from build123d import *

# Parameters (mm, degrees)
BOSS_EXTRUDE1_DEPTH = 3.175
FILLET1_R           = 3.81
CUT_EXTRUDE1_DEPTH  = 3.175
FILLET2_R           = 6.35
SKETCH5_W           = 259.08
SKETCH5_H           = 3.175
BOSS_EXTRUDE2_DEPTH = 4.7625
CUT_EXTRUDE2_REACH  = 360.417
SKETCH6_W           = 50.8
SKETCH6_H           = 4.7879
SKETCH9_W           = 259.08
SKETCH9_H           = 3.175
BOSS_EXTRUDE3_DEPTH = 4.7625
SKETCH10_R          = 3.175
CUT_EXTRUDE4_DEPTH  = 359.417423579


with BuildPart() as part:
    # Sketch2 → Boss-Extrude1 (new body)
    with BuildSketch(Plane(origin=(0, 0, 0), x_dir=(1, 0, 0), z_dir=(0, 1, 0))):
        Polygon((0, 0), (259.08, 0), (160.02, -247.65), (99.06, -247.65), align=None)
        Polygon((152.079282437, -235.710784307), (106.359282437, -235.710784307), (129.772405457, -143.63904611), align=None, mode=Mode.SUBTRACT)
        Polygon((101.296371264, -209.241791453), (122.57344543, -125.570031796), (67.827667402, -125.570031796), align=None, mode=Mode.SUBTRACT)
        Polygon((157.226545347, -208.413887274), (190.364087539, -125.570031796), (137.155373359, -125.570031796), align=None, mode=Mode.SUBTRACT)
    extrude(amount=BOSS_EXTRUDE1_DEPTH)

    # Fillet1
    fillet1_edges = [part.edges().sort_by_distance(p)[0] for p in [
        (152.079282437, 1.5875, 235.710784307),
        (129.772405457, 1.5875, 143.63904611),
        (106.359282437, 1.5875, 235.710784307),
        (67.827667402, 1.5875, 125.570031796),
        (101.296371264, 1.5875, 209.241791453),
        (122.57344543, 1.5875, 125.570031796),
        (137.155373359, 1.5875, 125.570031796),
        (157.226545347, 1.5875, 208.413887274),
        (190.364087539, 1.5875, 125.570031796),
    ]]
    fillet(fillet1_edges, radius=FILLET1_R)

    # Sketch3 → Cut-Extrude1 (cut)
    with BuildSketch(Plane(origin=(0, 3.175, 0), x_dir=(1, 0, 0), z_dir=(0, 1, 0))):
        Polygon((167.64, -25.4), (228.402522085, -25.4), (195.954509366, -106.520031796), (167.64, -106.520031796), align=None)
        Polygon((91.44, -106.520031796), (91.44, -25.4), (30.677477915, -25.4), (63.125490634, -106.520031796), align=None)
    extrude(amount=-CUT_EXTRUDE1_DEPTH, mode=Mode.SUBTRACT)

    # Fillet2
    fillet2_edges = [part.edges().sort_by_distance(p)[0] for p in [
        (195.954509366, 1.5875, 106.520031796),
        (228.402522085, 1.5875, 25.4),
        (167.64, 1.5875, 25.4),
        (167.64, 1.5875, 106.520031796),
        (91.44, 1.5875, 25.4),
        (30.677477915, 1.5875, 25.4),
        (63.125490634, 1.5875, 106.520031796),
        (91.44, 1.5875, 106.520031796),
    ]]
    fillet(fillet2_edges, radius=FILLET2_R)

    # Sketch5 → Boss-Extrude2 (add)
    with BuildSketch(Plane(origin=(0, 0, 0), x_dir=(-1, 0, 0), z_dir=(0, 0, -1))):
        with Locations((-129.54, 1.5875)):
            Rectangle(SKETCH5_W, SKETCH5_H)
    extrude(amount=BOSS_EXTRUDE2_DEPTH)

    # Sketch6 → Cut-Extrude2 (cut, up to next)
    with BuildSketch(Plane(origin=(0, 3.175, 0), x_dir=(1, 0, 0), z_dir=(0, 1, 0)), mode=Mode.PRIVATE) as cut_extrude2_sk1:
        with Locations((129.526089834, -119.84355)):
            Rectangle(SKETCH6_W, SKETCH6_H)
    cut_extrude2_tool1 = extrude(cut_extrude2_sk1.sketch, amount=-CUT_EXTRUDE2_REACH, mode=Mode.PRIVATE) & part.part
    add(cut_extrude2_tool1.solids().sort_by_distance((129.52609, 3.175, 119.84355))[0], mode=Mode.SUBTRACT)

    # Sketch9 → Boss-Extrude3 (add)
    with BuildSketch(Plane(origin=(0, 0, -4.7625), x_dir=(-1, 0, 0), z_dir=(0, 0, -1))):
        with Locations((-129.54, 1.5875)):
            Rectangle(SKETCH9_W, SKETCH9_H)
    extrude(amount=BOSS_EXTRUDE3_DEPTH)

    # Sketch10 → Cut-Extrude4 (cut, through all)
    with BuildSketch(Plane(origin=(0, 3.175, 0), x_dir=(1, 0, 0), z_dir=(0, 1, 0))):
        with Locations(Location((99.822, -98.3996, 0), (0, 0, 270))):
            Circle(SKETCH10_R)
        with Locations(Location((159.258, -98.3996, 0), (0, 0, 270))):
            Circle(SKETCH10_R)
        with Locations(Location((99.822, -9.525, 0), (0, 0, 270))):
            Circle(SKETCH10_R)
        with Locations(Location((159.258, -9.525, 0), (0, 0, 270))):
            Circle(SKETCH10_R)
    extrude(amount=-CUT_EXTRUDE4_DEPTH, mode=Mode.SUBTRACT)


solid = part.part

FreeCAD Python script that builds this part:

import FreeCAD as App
import Part
import Sketcher
from FreeCAD import Vector
Q = App.Units.Quantity


def edges_at(feature, points):
    """Names of the edges that pass closest to the given points."""
    edges = feature.Shape.Edges
    near = lambda p: min(range(len(edges)), key=lambda i: edges[i].distToShape(Part.Vertex(*p))[0])
    return sorted({f"Edge{near(p) + 1}" for p in points})


def add_polygon(sketch, points):
    """Adds a closed chain of lines whose ends are joined by coincident constraints."""
    first, n = sketch.GeometryCount, len(points)
    for a, b in zip(points, points[1:] + points[:1]):
        sketch.addGeometry(Part.LineSegment(App.Vector(*a, 0), App.Vector(*b, 0)), False)
    for i in range(n):
        sketch.addConstraint(Sketcher.Constraint("Coincident", first + i, 2, first + (i + 1) % n, 1))

doc = App.newDocument("Part")
body = doc.addObject("PartDesign::Body", "Body")

sketch1 = body.newObject("Sketcher::SketchObject", "Sketch")
sketch1.AttachmentSupport = (doc.getObject("XZ_Plane"), [""])
sketch1.MapMode = "FlatFace"
add_polygon(sketch1, [(259.08, 0), (0, 0), (99.06, 247.65), (160.02, 247.65)])
add_polygon(sketch1, [(152.079282, 235.710784), (106.359282, 235.710784), (129.772405, 143.639046)])
add_polygon(sketch1, [(157.226545, 208.413887), (137.155373, 125.570032), (190.364088, 125.570032)])
add_polygon(sketch1, [(101.296371, 209.241791), (67.827667, 125.570032), (122.573445, 125.570032)])
sketch1.addConstraint(Sketcher.Constraint("Horizontal", 0))
sketch1.addConstraint(Sketcher.Constraint("Horizontal", 2))
sketch1.addConstraint(Sketcher.Constraint("Horizontal", 4))
sketch1.addConstraint(Sketcher.Constraint("Horizontal", 8))
sketch1.addConstraint(Sketcher.Constraint("Horizontal", 11))
sketch1.addConstraint(Sketcher.Constraint("Coincident", 0, 2, -1, 1))
sketch1.addConstraint(Sketcher.Constraint("Parallel", 6, 7))
sketch1.addConstraint(Sketcher.Constraint("Parallel", 3, 9))
sketch1.addConstraint(Sketcher.Constraint("Parallel", 1, 10))
sketch1.addConstraint(Sketcher.Constraint("Parallel", 5, 12))
sketch1.addConstraint(Sketcher.Constraint("Horizontal", 8, 2, 10, 2))
sketch1.addConstraint(Sketcher.Constraint("Equal", 1, 3))
sketch1.addConstraint(Sketcher.Constraint("DistanceX", 0, 2, 0, 1, Q("10.2 in")))
sketch1.addConstraint(Sketcher.Constraint("DistanceX", 2, 1, 2, 2, Q("2.4 in")))
sketch1.addConstraint(Sketcher.Constraint("DistanceX", 4, 2, 4, 1, Q("1.8 in")))
sketch1.addConstraint(Sketcher.Constraint("DistanceY", -1, 1, 1, 2, Q("9.75 in")))
sketch1.addConstraint(Sketcher.Constraint("DistanceX", 11, 1, 11, 2, 54.745778))
sketch1.addConstraint(Sketcher.Constraint("DistanceX", 11, 2, 9, 2, 34.6531))
sketch1.addConstraint(Sketcher.Constraint("Distance", 6, 94.73543))
sketch1.addConstraint(Sketcher.Constraint("Distance", 7, 85.240579))
sketch1.addConstraint(Sketcher.Constraint("Distance", 12, 86.334682))
sketch1.addConstraint(Sketcher.Constraint("DistanceY", -1, 1, 7, 2, 125.570032))
sketch1.addConstraint(Sketcher.Constraint("DistanceX", -1, 1, 12, 2, 101.296371))
sketch1.addConstraint(Sketcher.Constraint("DistanceX", 7, 2, 6, 2, 14.923909))
sketch1.addConstraint(Sketcher.Constraint("DistanceY", 5, 2, 9, 2, 64.774841))
pad1 = body.newObject("PartDesign::Pad", "Pad")
pad1.Profile = sketch1
pad1.Length = Q("0.125 in")
pad1.Reversed = True
doc.recompute()

fillet = body.newObject("PartDesign::Fillet", "Fillet")
fillet.Base = (pad1, edges_at(pad1, [
    (152.079, 1.587, 235.711),
    (129.772, 1.587, 143.639),
    (106.359, 1.587, 235.711),
    (67.828, 1.587, 125.57),
    (101.296, 1.587, 209.242),
    (122.573, 1.587, 125.57),
    (137.155, 1.587, 125.57),
    (157.227, 1.587, 208.414),
    (190.364, 1.587, 125.57),
]))
fillet.Radius = Q("0.15 in")

sketch2 = body.newObject("Sketcher::SketchObject", "Sketch001")
sketch2.AttachmentSupport = (doc.getObject("XZ_Plane"), [""])
sketch2.MapMode = "FlatFace"
sketch2.AttachmentOffset = App.Placement(Vector(0, 0, -0.125 * 25.4), App.Rotation())
add_polygon(sketch2, [(228.402522, 25.4), (167.64, 25.4), (167.64, 106.520032), (195.954509, 106.520032)])
add_polygon(sketch2, [(91.44, 106.520032), (91.44, 25.4), (30.677478, 25.4), (63.125491, 106.520032)])
sketch2.addConstraint(Sketcher.Constraint("Horizontal", 0))
sketch2.addConstraint(Sketcher.Constraint("Vertical", 1))
sketch2.addConstraint(Sketcher.Constraint("Horizontal", 2))
sketch2.addConstraint(Sketcher.Constraint("Vertical", 4))
sketch2.addConstraint(Sketcher.Constraint("Horizontal", 5))
sketch2.addConstraint(Sketcher.Constraint("Horizontal", 7))
sketch2.addConstraint(Sketcher.Constraint("Horizontal", 3, 2, 4, 2))
sketch2.addConstraint(Sketcher.Constraint("Horizontal", 2, 2, 6, 2))
sketch2.addConstraint(Sketcher.Constraint("Equal", 0, 5))
sketch2.addConstraint(Sketcher.Constraint("Equal", 2, 7))
sketch2.addConstraint(Sketcher.Constraint("DistanceY", -1, 1, 0, 2, Q("1 in")))
sketch2.addConstraint(Sketcher.Constraint("DistanceX", 4, 2, 0, 2, Q("3 in")))
sketch2.addConstraint(Sketcher.Constraint("DistanceX", -1, 1, 0, 2, Q("6.6 in")))
sketch2.addConstraint(Sketcher.Constraint("DistanceX", 2, 1, 2, 2, 28.314509))
sketch2.addConstraint(Sketcher.Constraint("DistanceY", 1, 1, 1, 2, 81.120032))
sketch2.addConstraint(Sketcher.Constraint("Distance", 3, 87.368948))
pocket1 = body.newObject("PartDesign::Pocket", "Pocket")
pocket1.Profile = sketch2
pocket1.Length = Q("0.125 in")
pocket1.Reversed = True
doc.recompute()

fillet2 = body.newObject("PartDesign::Fillet", "Fillet001")
fillet2.Base = (pocket1, edges_at(pocket1, [
    (195.955, 1.587, 106.52),
    (228.403, 1.587, 25.4),
    (167.64, 1.587, 25.4),
    (167.64, 1.587, 106.52),
    (91.44, 1.587, 25.4),
    (30.677, 1.587, 25.4),
    (63.125, 1.587, 106.52),
    (91.44, 1.587, 106.52),
]))
fillet2.Radius = Q("0.25 in")

sketch3 = body.newObject("Sketcher::SketchObject", "Sketch002")
sketch3.AttachmentSupport = (doc.getObject("XY_Plane"), [""])
sketch3.MapMode = "FlatFace"
add_polygon(sketch3, [(259.08, 3.175), (259.08, 0), (0, 0), (0, 3.175)])
sketch3.addConstraint(Sketcher.Constraint("Vertical", 0))
sketch3.addConstraint(Sketcher.Constraint("Horizontal", 1))
sketch3.addConstraint(Sketcher.Constraint("Vertical", 2))
sketch3.addConstraint(Sketcher.Constraint("Horizontal", 3))
sketch3.addConstraint(Sketcher.Constraint("Coincident", 1, 2, -1, 1))
sketch3.addConstraint(Sketcher.Constraint("DistanceX", 1, 2, 1, 1, Q("10.2 in")))
sketch3.addConstraint(Sketcher.Constraint("DistanceY", 0, 2, 0, 1, Q("0.125 in")))
pad2 = body.newObject("PartDesign::Pad", "Pad001")
pad2.Profile = sketch3
pad2.Length = Q("0.1875 in")
pad2.Reversed = True

sketch4 = body.newObject("Sketcher::SketchObject", "Sketch003")
sketch4.AttachmentSupport = (doc.getObject("XZ_Plane"), [""])
sketch4.MapMode = "FlatFace"
sketch4.AttachmentOffset = App.Placement(Vector(0, 0, -0.125 * 25.4), App.Rotation())
add_polygon(sketch4, [(104.12609, 117.4496), (104.12609, 122.2375), (154.92609, 122.2375), (154.92609, 117.4496)])
sketch4.addConstraint(Sketcher.Constraint("Vertical", 0))
sketch4.addConstraint(Sketcher.Constraint("Horizontal", 1))
sketch4.addConstraint(Sketcher.Constraint("Vertical", 2))
sketch4.addConstraint(Sketcher.Constraint("Horizontal", 3))
sketch4.addConstraint(Sketcher.Constraint("DistanceX", 1, 1, 1, 2, Q("2 in")))
sketch4.addConstraint(Sketcher.Constraint("DistanceY", 0, 1, 0, 2, Q("0.1885 in")))
sketch4.addConstraint(Sketcher.Constraint("DistanceY", -1, 1, 0, 2, Q("4.8125 in")))
sketch4.addConstraint(Sketcher.Constraint("DistanceX", -1, 1, 0, 2, 104.12609))
pocket2 = body.newObject("PartDesign::Pocket", "Pocket001")
pocket2.Profile = sketch4
pocket2.Type = "UpToFirst"
pocket2.Reversed = True

sketch5 = body.newObject("Sketcher::SketchObject", "Sketch004")
sketch5.AttachmentSupport = (doc.getObject("XY_Plane"), [""])
sketch5.MapMode = "FlatFace"
sketch5.AttachmentOffset = App.Placement(Vector(0, 0, -0.1875 * 25.4), App.Rotation())
add_polygon(sketch5, [(259.08, 3.175), (259.08, 0), (0, 0), (0, 3.175)])
sketch5.addConstraint(Sketcher.Constraint("Vertical", 0))
sketch5.addConstraint(Sketcher.Constraint("Horizontal", 1))
sketch5.addConstraint(Sketcher.Constraint("Vertical", 2))
sketch5.addConstraint(Sketcher.Constraint("Horizontal", 3))
sketch5.addConstraint(Sketcher.Constraint("Coincident", 1, 2, -1, 1))
sketch5.addConstraint(Sketcher.Constraint("DistanceX", 1, 2, 1, 1, Q("10.2 in")))
sketch5.addConstraint(Sketcher.Constraint("DistanceY", 0, 2, 0, 1, Q("0.125 in")))
pad3 = body.newObject("PartDesign::Pad", "Pad002")
pad3.Profile = sketch5
pad3.Length = Q("0.1875 in")
pad3.Reversed = True

sketch6 = body.newObject("Sketcher::SketchObject", "Sketch005")
sketch6.AttachmentSupport = (doc.getObject("XZ_Plane"), [""])
sketch6.MapMode = "FlatFace"
sketch6.AttachmentOffset = App.Placement(Vector(0, 0, -0.125 * 25.4), App.Rotation())
sketch6.addGeometry(Part.Circle(Vector(99.822, 98.3996, 0), Vector(0, 0, 1), 3.175), False)
sketch6.addGeometry(Part.Circle(Vector(159.258, 98.3996, 0), Vector(0, 0, 1), 3.175), False)
sketch6.addGeometry(Part.Circle(Vector(99.822, 9.525, 0), Vector(0, 0, 1), 3.175), False)
sketch6.addGeometry(Part.Circle(Vector(159.258, 9.525, 0), Vector(0, 0, 1), 3.175), False)
sketch6.addConstraint(Sketcher.Constraint("Equal", 0, 1))
sketch6.addConstraint(Sketcher.Constraint("Equal", 1, 2))
sketch6.addConstraint(Sketcher.Constraint("Equal", 2, 3))
sketch6.addConstraint(Sketcher.Constraint("Horizontal", 0, 3, 1, 3))
sketch6.addConstraint(Sketcher.Constraint("Horizontal", 2, 3, 3, 3))
sketch6.addConstraint(Sketcher.Constraint("Vertical", 0, 3, 2, 3))
sketch6.addConstraint(Sketcher.Constraint("Vertical", 1, 3, 3, 3))
sketch6.addConstraint(Sketcher.Constraint("Diameter", 0, Q("0.25 in")))
sketch6.addConstraint(Sketcher.Constraint("DistanceX", -1, 1, 0, 3, Q("3.93 in")))
sketch6.addConstraint(Sketcher.Constraint("DistanceX", -1, 1, 1, 3, Q("6.27 in")))
sketch6.addConstraint(Sketcher.Constraint("DistanceY", -1, 1, 0, 3, Q("3.874 in")))
sketch6.addConstraint(Sketcher.Constraint("DistanceY", -1, 1, 2, 3, Q("0.375 in")))
pocket3 = body.newObject("PartDesign::Pocket", "Pocket002")
pocket3.Profile = sketch6
pocket3.Type = "ThroughAll"
pocket3.Reversed = True

doc.recompute()
